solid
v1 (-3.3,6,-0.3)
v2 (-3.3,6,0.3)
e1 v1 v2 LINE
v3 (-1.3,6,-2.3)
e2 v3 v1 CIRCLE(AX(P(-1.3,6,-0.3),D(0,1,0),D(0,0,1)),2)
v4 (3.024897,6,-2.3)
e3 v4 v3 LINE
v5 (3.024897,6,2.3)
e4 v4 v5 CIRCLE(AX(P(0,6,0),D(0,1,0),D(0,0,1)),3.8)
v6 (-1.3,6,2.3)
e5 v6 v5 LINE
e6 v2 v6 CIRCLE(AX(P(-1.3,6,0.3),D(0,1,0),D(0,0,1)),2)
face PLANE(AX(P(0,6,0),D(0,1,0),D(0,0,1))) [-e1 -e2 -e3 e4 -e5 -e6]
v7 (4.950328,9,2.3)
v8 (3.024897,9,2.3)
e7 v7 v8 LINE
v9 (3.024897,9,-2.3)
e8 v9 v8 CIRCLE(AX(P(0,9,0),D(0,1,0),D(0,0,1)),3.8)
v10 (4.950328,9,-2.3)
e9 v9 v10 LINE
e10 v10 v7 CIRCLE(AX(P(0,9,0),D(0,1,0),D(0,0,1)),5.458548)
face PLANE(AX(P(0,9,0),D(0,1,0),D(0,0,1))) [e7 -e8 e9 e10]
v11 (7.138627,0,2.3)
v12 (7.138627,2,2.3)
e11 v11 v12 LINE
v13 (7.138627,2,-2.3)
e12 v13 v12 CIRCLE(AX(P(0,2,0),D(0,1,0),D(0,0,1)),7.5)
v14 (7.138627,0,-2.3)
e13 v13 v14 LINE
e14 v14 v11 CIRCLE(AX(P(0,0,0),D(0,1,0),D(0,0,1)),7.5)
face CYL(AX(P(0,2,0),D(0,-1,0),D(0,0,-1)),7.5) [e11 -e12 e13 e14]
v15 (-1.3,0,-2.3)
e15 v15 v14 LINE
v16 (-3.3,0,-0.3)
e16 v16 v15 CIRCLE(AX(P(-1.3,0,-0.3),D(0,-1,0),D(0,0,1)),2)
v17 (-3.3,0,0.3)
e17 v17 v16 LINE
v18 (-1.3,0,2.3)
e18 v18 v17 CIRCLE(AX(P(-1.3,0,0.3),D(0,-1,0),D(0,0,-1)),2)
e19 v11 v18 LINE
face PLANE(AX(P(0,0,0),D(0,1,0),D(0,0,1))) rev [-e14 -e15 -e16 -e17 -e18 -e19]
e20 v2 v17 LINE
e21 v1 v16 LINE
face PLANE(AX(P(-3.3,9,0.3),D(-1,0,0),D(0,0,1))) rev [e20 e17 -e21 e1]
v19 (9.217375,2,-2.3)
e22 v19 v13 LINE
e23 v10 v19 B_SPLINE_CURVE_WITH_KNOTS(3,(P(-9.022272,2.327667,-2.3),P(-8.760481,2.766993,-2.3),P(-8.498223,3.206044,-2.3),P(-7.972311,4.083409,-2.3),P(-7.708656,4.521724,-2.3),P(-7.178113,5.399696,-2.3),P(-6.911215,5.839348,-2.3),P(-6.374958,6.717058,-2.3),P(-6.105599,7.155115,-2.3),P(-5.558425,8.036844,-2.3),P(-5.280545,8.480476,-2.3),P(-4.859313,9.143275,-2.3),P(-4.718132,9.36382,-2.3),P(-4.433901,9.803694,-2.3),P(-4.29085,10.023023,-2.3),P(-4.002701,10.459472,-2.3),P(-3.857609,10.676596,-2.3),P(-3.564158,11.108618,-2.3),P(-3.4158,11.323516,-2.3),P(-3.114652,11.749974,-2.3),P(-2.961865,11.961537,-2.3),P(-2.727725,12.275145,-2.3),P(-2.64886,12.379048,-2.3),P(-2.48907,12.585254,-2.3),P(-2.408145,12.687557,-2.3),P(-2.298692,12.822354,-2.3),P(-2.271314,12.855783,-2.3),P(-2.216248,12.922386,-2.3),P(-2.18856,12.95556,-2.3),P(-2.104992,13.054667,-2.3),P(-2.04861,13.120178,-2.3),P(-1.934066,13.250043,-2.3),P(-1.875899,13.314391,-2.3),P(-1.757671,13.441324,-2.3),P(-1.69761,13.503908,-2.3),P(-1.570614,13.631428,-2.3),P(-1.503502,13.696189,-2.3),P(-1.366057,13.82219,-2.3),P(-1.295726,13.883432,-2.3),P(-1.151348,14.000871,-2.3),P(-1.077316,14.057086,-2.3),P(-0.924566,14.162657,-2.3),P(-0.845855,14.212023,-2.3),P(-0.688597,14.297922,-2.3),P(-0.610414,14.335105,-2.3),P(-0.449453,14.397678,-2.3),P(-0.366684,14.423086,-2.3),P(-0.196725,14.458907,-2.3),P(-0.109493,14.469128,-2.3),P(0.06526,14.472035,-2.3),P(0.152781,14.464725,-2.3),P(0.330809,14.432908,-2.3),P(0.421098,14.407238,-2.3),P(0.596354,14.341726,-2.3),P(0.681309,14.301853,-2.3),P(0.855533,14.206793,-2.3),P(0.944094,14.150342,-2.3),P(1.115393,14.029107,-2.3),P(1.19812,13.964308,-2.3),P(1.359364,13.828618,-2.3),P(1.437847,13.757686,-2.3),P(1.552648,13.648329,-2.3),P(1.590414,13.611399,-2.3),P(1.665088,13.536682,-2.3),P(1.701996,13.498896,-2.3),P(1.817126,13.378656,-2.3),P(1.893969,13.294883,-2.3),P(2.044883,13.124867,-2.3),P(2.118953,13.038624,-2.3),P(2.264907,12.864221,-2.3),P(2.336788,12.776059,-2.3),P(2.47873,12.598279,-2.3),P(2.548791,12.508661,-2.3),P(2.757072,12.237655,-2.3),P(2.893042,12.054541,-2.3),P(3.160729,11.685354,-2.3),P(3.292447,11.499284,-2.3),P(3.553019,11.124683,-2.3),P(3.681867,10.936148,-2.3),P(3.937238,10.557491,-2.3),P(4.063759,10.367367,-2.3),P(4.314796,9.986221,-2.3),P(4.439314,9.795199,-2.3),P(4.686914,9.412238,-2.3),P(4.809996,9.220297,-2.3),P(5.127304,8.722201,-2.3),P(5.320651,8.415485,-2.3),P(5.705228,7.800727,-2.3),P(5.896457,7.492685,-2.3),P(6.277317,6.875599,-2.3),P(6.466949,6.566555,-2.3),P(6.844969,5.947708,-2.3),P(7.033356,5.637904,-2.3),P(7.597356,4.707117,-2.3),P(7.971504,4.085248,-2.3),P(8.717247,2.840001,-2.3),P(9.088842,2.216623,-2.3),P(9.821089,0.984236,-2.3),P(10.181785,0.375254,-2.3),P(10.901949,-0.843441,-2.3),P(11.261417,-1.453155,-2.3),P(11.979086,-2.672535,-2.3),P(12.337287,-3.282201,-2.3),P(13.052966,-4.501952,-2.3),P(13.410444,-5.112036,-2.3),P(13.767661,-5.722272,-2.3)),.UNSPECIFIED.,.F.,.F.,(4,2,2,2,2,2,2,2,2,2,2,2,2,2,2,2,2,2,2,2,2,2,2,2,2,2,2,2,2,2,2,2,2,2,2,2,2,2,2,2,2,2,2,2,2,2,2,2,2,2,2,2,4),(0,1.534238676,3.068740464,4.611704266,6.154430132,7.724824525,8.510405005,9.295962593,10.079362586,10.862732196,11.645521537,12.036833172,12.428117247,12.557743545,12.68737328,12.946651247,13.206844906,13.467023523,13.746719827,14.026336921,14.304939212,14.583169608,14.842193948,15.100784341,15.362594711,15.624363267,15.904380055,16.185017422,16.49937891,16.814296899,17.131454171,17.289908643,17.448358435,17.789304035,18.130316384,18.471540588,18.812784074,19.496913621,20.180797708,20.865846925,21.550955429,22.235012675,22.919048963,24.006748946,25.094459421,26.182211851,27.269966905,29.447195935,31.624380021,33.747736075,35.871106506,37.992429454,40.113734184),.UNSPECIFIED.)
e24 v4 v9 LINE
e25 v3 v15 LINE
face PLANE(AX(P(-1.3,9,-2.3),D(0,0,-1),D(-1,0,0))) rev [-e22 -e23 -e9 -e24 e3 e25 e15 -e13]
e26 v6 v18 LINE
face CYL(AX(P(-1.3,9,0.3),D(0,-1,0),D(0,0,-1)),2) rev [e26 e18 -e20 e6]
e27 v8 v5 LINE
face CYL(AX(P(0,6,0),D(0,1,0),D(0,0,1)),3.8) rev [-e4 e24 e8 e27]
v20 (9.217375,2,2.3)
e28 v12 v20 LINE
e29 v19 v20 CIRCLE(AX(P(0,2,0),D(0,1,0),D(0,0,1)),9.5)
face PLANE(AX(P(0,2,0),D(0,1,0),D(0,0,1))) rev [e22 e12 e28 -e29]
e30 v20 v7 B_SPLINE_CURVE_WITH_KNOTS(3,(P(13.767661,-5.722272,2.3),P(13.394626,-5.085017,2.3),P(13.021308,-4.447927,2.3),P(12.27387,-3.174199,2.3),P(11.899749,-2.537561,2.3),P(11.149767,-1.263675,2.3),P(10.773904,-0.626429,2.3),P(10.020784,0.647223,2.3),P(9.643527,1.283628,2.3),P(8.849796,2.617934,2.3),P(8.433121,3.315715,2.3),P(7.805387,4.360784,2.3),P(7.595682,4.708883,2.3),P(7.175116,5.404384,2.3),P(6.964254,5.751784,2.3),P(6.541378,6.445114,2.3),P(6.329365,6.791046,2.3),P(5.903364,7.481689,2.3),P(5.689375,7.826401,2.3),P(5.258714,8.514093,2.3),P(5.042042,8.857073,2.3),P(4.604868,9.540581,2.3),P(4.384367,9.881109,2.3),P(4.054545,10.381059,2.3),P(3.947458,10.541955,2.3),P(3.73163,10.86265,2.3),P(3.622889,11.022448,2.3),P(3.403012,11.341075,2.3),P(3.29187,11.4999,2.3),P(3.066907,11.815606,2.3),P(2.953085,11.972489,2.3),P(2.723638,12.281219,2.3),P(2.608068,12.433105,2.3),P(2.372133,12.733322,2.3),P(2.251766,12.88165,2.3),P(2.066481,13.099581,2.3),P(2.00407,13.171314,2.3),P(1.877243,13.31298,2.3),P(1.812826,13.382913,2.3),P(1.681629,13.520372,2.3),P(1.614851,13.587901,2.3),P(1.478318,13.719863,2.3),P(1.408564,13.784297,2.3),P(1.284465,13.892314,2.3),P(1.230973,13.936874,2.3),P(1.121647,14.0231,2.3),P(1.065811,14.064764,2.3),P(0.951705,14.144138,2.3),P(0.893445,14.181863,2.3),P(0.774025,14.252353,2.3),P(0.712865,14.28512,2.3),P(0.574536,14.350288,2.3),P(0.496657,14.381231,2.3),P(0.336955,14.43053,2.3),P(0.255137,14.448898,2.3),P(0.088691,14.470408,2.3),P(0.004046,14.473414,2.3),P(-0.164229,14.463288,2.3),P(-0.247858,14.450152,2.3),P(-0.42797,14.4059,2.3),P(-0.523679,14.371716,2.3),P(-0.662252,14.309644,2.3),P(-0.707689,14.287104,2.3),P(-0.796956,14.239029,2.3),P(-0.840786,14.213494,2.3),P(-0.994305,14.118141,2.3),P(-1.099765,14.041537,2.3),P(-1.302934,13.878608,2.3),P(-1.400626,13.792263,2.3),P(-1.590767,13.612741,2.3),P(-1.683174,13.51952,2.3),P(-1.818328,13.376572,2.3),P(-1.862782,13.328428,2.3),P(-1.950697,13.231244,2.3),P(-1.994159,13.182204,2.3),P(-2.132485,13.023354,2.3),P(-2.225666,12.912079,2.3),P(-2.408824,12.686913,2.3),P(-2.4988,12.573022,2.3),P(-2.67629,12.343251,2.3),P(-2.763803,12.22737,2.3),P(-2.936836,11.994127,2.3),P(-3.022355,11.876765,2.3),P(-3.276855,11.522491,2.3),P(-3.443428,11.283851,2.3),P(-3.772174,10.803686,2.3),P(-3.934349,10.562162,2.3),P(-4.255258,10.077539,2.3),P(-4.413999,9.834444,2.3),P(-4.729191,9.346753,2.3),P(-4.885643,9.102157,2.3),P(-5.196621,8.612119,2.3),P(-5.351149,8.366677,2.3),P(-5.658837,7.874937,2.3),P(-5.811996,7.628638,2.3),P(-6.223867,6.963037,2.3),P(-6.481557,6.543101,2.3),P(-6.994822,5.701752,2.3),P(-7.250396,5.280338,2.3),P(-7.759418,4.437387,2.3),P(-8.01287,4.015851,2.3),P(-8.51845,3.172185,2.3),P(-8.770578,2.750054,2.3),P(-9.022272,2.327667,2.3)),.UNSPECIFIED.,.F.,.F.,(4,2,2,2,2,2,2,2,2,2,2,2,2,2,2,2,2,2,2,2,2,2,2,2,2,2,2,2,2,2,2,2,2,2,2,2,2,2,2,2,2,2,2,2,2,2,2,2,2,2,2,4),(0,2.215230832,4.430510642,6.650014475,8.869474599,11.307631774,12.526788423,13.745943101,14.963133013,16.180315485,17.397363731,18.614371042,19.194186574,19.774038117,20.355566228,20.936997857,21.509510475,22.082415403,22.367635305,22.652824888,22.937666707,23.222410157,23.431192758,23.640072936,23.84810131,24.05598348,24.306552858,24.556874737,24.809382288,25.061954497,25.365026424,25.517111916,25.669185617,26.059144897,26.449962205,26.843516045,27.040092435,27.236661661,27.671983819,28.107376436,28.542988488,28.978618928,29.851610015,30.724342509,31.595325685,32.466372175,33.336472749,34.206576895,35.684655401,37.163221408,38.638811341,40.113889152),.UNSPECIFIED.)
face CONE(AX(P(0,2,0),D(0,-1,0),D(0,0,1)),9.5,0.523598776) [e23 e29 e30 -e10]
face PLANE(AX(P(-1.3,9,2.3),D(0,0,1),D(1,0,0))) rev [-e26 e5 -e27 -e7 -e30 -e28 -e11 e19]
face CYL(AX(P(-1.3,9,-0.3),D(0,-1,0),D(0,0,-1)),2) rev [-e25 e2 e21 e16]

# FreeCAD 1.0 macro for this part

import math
import FreeCAD as App
import Part
import Sketcher

V = App.Vector
Q = App.Units.Quantity

doc = App.newDocument("Part")
body = doc.addObject("PartDesign::Body", "Body")

# Sketch on XZ plane
sketch1 = doc.addObject("Sketcher::SketchObject", "Sketch")
body.addObject(sketch1)
sketch1.AttachmentSupport = (doc.XZ_Plane, [""])
sketch1.MapMode = "FlatFace"
sketch1.addGeometry(Part.Circle(V(0, 0, 0), V(0, 0, 1), 8), False)
sketch1.addConstraint(Sketcher.Constraint("Coincident", 0, 3, -1, 1))
sketch1.addConstraint(Sketcher.Constraint("Diameter", 0, Q("15 mm")))
pad1 = doc.addObject("PartDesign::Pad", "Pad")
body.addObject(pad1)
pad1.Profile = sketch1
pad1.Length = 2
pad1.Reversed = True

# Sketch on XZ plane
sketch2 = doc.addObject("Sketcher::SketchObject", "Sketch001")
body.addObject(sketch2)
sketch2.AttachmentSupport = (doc.XZ_Plane, [""])
sketch2.MapMode = "FlatFace"
sketch2.AttachmentOffset = App.Placement(V(0, 0, -2), App.Rotation())
sketch2.addGeometry(Part.Circle(V(0, 0, 0), V(0, 0, 1), 10), False)
sketch2.addConstraint(Sketcher.Constraint("Coincident", 0, 3, -1, 1))
sketch2.addConstraint(Sketcher.Constraint("Diameter", 0, Q("19 mm")))
pad2 = doc.addObject("PartDesign::Pad", "Pad001")
body.addObject(pad2)
pad2.Profile = sketch2
pad2.Length = 7
pad2.Reversed = True
pad2.TaperAngle = -30

# Sketch on XZ plane
sketch3 = doc.addObject("Sketcher::SketchObject", "Sketch002")
body.addObject(sketch3)
sketch3.AttachmentSupport = (doc.XZ_Plane, [""])
sketch3.MapMode = "FlatFace"
sketch3.AttachmentOffset = App.Placement(V(0, 0, -9), App.Rotation())
sketch3.addGeometry(Part.Circle(V(0, 0, 0), V(0, 0, 1), 3.8), False)
sketch3.addConstraint(Sketcher.Constraint("Coincident", 0, 3, -1, 1))
sketch3.addConstraint(Sketcher.Constraint("Diameter", 0, Q("7.6 mm")))
pocket1 = doc.addObject("PartDesign::Pocket", "Pocket")
body.addObject(pocket1)
pocket1.Profile = sketch3
pocket1.Length = 3
pocket1.Reversed = True

# Sketch on XZ plane
sketch4 = doc.addObject("Sketcher::SketchObject", "Sketch003")
body.addObject(sketch4)
sketch4.AttachmentSupport = (doc.XZ_Plane, [""])
sketch4.MapMode = "FlatFace"
sketch4.addGeometry(Part.LineSegment(V(11.9, 2.3, 0), V(-1.3, 2.3, 0)), False)
sketch4.addGeometry(Part.ArcOfCircle(Part.Circle(V(-1.3, 0.3, 0), V(0, 0, 1), 2), math.radians(90), math.radians(180)), False)
sketch4.addGeometry(Part.LineSegment(V(-3.3, 0.3, 0), V(-3.3, -0.3, 0)), False)
sketch4.addGeometry(Part.ArcOfCircle(Part.Circle(V(-1.3, -0.3, 0), V(0, 0, 1), 2), math.radians(-180), math.radians(-90)), False)
sketch4.addGeometry(Part.LineSegment(V(-1.3, -2.3, 0), V(11.9, -2.3, 0)), False)
sketch4.addGeometry(Part.LineSegment(V(11.9, -2.3, 0), V(11.9, 2.3, 0)), False)
sketch4.addConstraint(Sketcher.Constraint("Tangent", 0, 2, 1, 1))
sketch4.addConstraint(Sketcher.Constraint("Tangent", 1, 2, 2, 1))
sketch4.addConstraint(Sketcher.Constraint("Tangent", 2, 2, 3, 1))
sketch4.addConstraint(Sketcher.Constraint("Tangent", 3, 2, 4, 1))
sketch4.addConstraint(Sketcher.Constraint("Coincident", 4, 2, 5, 1))
sketch4.addConstraint(Sketcher.Constraint("Coincident", 5, 2, 0, 1))
sketch4.addConstraint(Sketcher.Constraint("Horizontal", 0))
sketch4.addConstraint(Sketcher.Constraint("Vertical", 2))
sketch4.addConstraint(Sketcher.Constraint("Horizontal", 4))
sketch4.addConstraint(Sketcher.Constraint("Vertical", 5))
sketch4.addConstraint(Sketcher.Constraint("Equal", 1, 3))
sketch4.addConstraint(Sketcher.Constraint("Radius", 1, Q("2 mm")))
sketch4.addConstraint(Sketcher.Constraint("DistanceY", 2, 2, 2, 1, Q("0.6 mm")))
sketch4.addConstraint(Sketcher.Constraint("DistanceX", 1, 3, -1, 1, Q("1.3 mm")))
sketch4.addConstraint(Sketcher.Constraint("DistanceY", -1, 1, 1, 3, Q("0.3 mm")))
sketch4.addConstraint(Sketcher.Constraint("DistanceX", 0, 2, 0, 1, Q("13.187635 mm")))
pocket2 = doc.addObject("PartDesign::Pocket", "Pocket001")
body.addObject(pocket2)
pocket2.Profile = sketch4
pocket2.Type = "ThroughAll"

doc.recompute()
